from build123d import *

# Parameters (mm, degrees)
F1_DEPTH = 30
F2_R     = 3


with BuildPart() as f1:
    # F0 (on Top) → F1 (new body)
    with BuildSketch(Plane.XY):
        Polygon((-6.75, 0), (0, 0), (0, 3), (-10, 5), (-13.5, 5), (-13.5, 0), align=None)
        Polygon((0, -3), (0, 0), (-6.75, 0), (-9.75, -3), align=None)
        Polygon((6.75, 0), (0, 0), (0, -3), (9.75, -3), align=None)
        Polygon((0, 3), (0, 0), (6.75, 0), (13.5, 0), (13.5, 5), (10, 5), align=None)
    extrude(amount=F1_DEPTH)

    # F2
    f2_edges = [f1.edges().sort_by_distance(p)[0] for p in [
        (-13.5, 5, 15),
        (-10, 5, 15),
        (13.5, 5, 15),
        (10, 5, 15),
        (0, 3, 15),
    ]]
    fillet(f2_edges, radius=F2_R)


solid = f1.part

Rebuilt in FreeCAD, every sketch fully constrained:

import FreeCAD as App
import Part
import Sketcher
from FreeCAD import Vector


def edges_at(feature, points):
    """Names of the edges that pass closest to the given points."""
    edges = feature.Shape.Edges
    near = lambda p: min(range(len(edges)), key=lambda i: edges[i].distToShape(Part.Vertex(*p))[0])
    return sorted({f"Edge{near(p) + 1}" for p in points})


def add_polygon(sketch, points):
    """Adds a closed chain of lines whose ends are joined by coincident constraints."""
    first, n = sketch.GeometryCount, len(points)
    for a, b in zip(points, points[1:] + points[:1]):
        sketch.addGeometry(Part.LineSegment(App.Vector(*a, 0), App.Vector(*b, 0)), False)
    for i in range(n):
        sketch.addConstraint(Sketcher.Constraint("Coincident", first + i, 2, first + (i + 1) % n, 1))

doc = App.newDocument("Part")
body = doc.addObject("PartDesign::Body", "Body")

# Sketch on XY plane
sketch1 = doc.addObject("Sketcher::SketchObject", "Sketch")
body.addObject(sketch1)
sketch1.AttachmentSupport = (doc.XY_Plane, [""])
sketch1.MapMode = "FlatFace"
add_polygon(sketch1, [(0, 3), (-10, 5), (-13.5, 5), (-13.5, 0), (-6.8, 0), (-9.8, -3), (9.8, -3), (6.8, 0), (13.5, 0), (13.5, 5), (10, 5)])  # lines 0-10
sketch1.addConstraint([
    Sketcher.Constraint("Horizontal", 1),
    Sketcher.Constraint("Vertical", 2),
    Sketcher.Constraint("Horizontal", 3),
    Sketcher.Constraint("Horizontal", 5),
    Sketcher.Constraint("Horizontal", 7),
    Sketcher.Constraint("Vertical", 8),
    Sketcher.Constraint("Horizontal", 9),
    Sketcher.Constraint("Symmetric", 3, 2, 6, 2, -1, 1),
    Sketcher.Constraint("Symmetric", 2, 2, 7, 2, -2),
    Sketcher.Constraint("Symmetric", 0, 2, 9, 2, -2),
    Sketcher.Constraint("PointOnObject", 10, 2, -2),
    Sketcher.Constraint("Perpendicular", 4, 6),
    Sketcher.Constraint("Equal", 4, 6),
    Sketcher.Constraint("DistanceY", 2, 2, 2, 1, 5.0),
    Sketcher.Constraint("DistanceX", 1, 2, 1, 1, 3.5),
    Sketcher.Constraint("DistanceX", 5, 1, 5, 2, 19.5),
    Sketcher.Constraint("DistanceX", 0, 2, -1, 1, 10.0),
    Sketcher.Constraint("DistanceY", 4, 2, -1, 1, 3.0),
    Sketcher.Constraint("DistanceY", -1, 1, 10, 2, 3.0),
])
pad1 = doc.addObject("PartDesign::Pad", "Pad")
body.addObject(pad1)
pad1.Profile = sketch1
pad1.Length = 30
doc.recompute()

fillet = doc.addObject("PartDesign::Fillet", "Fillet")
body.addObject(fillet)
fillet.Base = (pad1, edges_at(pad1, [
    (-13.5, 5, 15),
    (-10, 5, 15),
    (13.5, 5, 15),
    (10, 5, 15),
    (0, 3, 15),
]))
fillet.Radius = 3

doc.recompute()
